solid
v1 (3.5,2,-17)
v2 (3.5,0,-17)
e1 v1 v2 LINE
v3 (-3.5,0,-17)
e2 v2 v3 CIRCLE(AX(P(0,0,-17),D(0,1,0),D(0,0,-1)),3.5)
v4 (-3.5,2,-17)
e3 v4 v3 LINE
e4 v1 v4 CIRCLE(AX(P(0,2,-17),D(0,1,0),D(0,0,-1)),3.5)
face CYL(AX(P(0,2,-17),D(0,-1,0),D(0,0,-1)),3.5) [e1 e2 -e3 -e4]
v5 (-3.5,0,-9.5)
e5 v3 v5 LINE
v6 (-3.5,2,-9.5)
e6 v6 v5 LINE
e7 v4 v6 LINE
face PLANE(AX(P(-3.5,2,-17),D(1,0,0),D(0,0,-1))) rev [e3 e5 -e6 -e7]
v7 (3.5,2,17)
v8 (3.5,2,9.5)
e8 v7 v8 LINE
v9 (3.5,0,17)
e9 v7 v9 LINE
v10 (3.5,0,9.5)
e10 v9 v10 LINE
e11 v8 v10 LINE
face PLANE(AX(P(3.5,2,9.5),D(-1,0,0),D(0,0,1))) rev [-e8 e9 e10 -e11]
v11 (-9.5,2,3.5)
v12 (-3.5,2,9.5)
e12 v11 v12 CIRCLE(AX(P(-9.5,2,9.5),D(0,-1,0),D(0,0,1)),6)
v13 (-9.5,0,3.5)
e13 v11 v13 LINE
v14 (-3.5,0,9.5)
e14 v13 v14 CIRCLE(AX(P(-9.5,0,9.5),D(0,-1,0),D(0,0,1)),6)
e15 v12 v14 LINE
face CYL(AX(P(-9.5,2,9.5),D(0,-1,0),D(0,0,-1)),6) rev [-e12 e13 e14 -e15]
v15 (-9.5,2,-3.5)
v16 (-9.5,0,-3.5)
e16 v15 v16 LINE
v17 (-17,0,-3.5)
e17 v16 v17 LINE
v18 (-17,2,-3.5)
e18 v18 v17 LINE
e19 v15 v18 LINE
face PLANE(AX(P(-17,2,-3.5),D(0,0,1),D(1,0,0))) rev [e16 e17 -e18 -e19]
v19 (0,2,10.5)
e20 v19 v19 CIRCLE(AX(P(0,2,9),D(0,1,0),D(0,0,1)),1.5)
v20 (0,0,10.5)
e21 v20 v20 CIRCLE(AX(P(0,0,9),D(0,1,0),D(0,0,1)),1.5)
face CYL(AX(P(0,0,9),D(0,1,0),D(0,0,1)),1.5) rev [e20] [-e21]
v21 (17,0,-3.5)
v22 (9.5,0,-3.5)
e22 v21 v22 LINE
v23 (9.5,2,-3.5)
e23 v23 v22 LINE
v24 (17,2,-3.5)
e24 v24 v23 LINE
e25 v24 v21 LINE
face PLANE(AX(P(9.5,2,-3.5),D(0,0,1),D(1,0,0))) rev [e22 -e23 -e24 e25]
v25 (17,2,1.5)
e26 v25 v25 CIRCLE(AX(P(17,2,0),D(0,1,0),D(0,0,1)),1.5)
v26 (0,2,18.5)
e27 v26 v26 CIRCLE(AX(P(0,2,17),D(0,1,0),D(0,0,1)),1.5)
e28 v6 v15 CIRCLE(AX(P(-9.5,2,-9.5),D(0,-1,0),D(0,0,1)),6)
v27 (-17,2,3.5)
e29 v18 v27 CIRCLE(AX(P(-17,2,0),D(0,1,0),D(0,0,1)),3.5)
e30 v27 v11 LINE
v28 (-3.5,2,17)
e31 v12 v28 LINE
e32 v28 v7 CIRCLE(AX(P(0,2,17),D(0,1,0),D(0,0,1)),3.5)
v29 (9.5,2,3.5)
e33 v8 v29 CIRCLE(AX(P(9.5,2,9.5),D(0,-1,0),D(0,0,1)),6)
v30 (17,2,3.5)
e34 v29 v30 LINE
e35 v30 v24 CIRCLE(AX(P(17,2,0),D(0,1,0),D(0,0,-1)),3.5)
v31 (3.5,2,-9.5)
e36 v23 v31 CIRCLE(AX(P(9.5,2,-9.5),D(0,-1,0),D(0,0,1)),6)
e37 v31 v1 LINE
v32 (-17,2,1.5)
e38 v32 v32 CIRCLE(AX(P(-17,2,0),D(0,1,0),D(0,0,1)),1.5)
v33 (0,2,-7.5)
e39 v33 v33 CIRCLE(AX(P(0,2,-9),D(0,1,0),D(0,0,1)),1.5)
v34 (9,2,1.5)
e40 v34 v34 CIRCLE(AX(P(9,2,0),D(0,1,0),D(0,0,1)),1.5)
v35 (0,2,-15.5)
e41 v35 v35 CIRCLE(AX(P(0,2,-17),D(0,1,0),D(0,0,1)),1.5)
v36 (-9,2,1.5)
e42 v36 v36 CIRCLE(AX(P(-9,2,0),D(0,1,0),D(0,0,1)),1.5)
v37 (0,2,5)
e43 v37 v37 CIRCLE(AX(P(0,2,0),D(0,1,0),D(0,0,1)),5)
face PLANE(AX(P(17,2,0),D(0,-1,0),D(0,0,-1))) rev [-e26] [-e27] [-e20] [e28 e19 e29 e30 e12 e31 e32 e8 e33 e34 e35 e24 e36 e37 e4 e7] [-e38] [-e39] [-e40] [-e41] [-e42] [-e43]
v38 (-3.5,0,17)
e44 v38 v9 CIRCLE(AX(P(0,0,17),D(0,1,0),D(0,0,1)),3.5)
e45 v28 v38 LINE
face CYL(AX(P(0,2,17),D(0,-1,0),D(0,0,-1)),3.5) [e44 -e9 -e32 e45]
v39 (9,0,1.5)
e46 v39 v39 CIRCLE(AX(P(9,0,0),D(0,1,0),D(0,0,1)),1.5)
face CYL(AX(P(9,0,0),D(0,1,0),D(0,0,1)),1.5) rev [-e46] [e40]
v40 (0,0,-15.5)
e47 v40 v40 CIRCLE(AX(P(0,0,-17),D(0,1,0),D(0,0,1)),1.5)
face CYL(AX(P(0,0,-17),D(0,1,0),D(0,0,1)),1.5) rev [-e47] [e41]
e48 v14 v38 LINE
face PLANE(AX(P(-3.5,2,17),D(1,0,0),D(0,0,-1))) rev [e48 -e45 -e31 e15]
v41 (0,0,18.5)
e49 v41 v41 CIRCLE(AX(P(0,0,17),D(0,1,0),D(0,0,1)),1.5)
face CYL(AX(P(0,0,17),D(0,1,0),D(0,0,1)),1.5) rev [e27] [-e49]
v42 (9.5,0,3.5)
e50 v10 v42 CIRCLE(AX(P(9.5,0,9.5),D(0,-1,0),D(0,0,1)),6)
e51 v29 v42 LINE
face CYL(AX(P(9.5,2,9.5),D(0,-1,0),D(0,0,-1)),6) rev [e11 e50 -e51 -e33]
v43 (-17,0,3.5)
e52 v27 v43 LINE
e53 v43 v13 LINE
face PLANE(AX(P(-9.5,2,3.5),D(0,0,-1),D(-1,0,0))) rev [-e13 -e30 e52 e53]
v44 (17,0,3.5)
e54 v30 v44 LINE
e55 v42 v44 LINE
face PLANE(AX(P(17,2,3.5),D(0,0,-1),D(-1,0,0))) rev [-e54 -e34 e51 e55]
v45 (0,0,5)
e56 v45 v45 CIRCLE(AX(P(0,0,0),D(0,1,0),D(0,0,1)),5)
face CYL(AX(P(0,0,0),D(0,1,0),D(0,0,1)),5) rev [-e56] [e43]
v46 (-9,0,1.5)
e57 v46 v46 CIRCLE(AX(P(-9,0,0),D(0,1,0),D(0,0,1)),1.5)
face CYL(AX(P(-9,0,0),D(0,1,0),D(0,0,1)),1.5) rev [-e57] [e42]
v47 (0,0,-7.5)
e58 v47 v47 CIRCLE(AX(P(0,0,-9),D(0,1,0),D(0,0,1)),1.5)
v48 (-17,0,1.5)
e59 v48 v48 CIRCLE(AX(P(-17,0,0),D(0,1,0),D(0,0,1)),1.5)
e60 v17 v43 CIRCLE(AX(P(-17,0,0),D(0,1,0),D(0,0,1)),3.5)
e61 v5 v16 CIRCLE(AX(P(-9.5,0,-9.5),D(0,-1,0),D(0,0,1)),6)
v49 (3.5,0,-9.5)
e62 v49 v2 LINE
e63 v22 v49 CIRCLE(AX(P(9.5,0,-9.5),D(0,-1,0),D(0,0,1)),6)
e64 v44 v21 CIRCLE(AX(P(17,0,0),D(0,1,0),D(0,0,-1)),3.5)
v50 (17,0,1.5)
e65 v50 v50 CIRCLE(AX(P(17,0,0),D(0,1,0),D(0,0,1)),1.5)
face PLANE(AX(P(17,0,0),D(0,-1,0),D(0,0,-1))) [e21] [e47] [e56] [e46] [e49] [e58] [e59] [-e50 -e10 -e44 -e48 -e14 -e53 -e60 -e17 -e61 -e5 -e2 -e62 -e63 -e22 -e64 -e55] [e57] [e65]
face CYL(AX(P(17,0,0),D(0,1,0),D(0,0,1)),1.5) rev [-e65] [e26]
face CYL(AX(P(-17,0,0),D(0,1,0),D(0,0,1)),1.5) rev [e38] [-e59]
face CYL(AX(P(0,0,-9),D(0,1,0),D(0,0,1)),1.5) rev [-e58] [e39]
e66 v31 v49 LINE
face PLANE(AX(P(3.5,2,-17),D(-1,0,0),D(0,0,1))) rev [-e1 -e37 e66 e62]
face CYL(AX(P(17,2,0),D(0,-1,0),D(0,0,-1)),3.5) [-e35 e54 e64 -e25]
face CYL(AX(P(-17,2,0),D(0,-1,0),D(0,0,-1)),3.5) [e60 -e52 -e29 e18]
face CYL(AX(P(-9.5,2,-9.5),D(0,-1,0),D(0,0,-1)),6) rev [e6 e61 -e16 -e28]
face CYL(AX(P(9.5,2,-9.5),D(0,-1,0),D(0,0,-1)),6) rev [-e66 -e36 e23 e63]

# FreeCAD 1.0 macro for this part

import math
import FreeCAD as App
import Part
import Sketcher
from FreeCAD import Vector
Q = App.Units.Quantity

doc = App.newDocument("Part")
body = doc.addObject("PartDesign::Body", "Body")

# Sketch on XZ plane
sketch1 = body.newObject("Sketcher::SketchObject", "Sketch")
sketch1.AttachmentSupport = (doc.getObject("XZ_Plane"), [""])
sketch1.MapMode = "FlatFace"
sketch1.addGeometry(Part.LineSegment(Vector(-3.5, -17, 0), Vector(-3.5, -9.5, 0)), False)
sketch1.addGeometry(Part.ArcOfCircle(Part.Circle(Vector(-9.5, -9.5, 0), Vector(0, 0, 1), 6), math.radians(0), math.radians(90)), False)
sketch1.addGeometry(Part.LineSegment(Vector(-9.5, -3.5, 0), Vector(-17, -3.5, 0)), False)
sketch1.addGeometry(Part.ArcOfCircle(Part.Circle(Vector(-17, 0, 0), Vector(0, 0, 1), 3.5), math.radians(90), math.radians(270)), False)
sketch1.addGeometry(Part.LineSegment(Vector(-17, 3.5, 0), Vector(-9.5, 3.5, 0)), False)
sketch1.addGeometry(Part.ArcOfCircle(Part.Circle(Vector(-9.5, 9.5, 0), Vector(0, 0, 1), 6), math.radians(-90), math.radians(0)), False)
sketch1.addGeometry(Part.LineSegment(Vector(-3.5, 9.5, 0), Vector(-3.5, 17, 0)), False)
sketch1.addGeometry(Part.ArcOfCircle(Part.Circle(Vector(0, 17, 0), Vector(0, 0, 1), 3.5), math.radians(0), math.radians(180)), False)
sketch1.addGeometry(Part.LineSegment(Vector(3.5, 17, 0), Vector(3.5, 9.5, 0)), False)
sketch1.addGeometry(Part.ArcOfCircle(Part.Circle(Vector(9.5, 9.5, 0), Vector(0, 0, 1), 6), math.radians(180), math.radians(270)), False)
sketch1.addGeometry(Part.LineSegment(Vector(9.5, 3.5, 0), Vector(17, 3.5, 0)), False)
sketch1.addGeometry(Part.ArcOfCircle(Part.Circle(Vector(17, 0, 0), Vector(0, 0, 1), 3.5), math.radians(-90), math.radians(90)), False)
sketch1.addGeometry(Part.LineSegment(Vector(17, -3.5, 0), Vector(9.5, -3.5, 0)), False)
sketch1.addGeometry(Part.ArcOfCircle(Part.Circle(Vector(9.5, -9.5, 0), Vector(0, 0, 1), 6), math.radians(90), math.radians(180)), False)
sketch1.addGeometry(Part.LineSegment(Vector(3.5, -9.5, 0), Vector(3.5, -17, 0)), False)
sketch1.addGeometry(Part.ArcOfCircle(Part.Circle(Vector(0, -17, 0), Vector(0, 0, 1), 3.5), math.radians(180), math.radians(360)), False)
sketch1.addConstraint(Sketcher.Constraint("Tangent", 0, 2, 1, 1))
sketch1.addConstraint(Sketcher.Constraint("Tangent", 1, 2, 2, 1))
sketch1.addConstraint(Sketcher.Constraint("Tangent", 2, 2, 3, 2))
sketch1.addConstraint(Sketcher.Constraint("Tangent", 3, 1, 4, 1))
sketch1.addConstraint(Sketcher.Constraint("Tangent", 4, 2, 5, 1))
sketch1.addConstraint(Sketcher.Constraint("Tangent", 5, 2, 6, 1))
sketch1.addConstraint(Sketcher.Constraint("Tangent", 6, 2, 7, 2))
sketch1.addConstraint(Sketcher.Constraint("Tangent", 7, 1, 8, 1))
sketch1.addConstraint(Sketcher.Constraint("Tangent", 8, 2, 9, 1))
sketch1.addConstraint(Sketcher.Constraint("Tangent", 9, 2, 10, 1))
sketch1.addConstraint(Sketcher.Constraint("Tangent", 10, 2, 11, 2))
sketch1.addConstraint(Sketcher.Constraint("Tangent", 11, 1, 12, 1))
sketch1.addConstraint(Sketcher.Constraint("Tangent", 12, 2, 13, 1))
sketch1.addConstraint(Sketcher.Constraint("Tangent", 13, 2, 14, 1))
sketch1.addConstraint(Sketcher.Constraint("Tangent", 14, 2, 15, 2))
sketch1.addConstraint(Sketcher.Constraint("Tangent", 15, 1, 0, 1))
sketch1.addConstraint(Sketcher.Constraint("Vertical", 0))
sketch1.addConstraint(Sketcher.Constraint("Horizontal", 2))
sketch1.addConstraint(Sketcher.Constraint("Horizontal", 4))
sketch1.addConstraint(Sketcher.Constraint("Vertical", 6))
sketch1.addConstraint(Sketcher.Constraint("Vertical", 8))
sketch1.addConstraint(Sketcher.Constraint("Horizontal", 10))
sketch1.addConstraint(Sketcher.Constraint("Horizontal", 12))
sketch1.addConstraint(Sketcher.Constraint("Vertical", 14))
sketch1.addConstraint(Sketcher.Constraint("Equal", 1, 5))
sketch1.addConstraint(Sketcher.Constraint("Equal", 3, 7))
sketch1.addConstraint(Sketcher.Constraint("Equal", 5, 9))
sketch1.addConstraint(Sketcher.Constraint("Equal", 7, 11))
sketch1.addConstraint(Sketcher.Constraint("Equal", 9, 13))
sketch1.addConstraint(Sketcher.Constraint("Equal", 11, 15))
sketch1.addConstraint(Sketcher.Constraint("Symmetric", 1, 3, 9, 3, -1, 1))
sketch1.addConstraint(Sketcher.Constraint("Symmetric", 5, 3, 9, 3, -2))
sketch1.addConstraint(Sketcher.Constraint("Equal", 4, 10))
sketch1.addConstraint(Sketcher.Constraint("Equal", 12, 0))
sketch1.addConstraint(Sketcher.Constraint("Equal", 0, 6))
sketch1.addConstraint(Sketcher.Constraint("Radius", 1, Q("6 mm")))
sketch1.addConstraint(Sketcher.Constraint("Radius", 3, Q("3.5 mm")))
sketch1.addConstraint(Sketcher.Constraint("DistanceX", 2, 2, 2, 1, Q("7.5 mm")))
pad1 = body.newObject("PartDesign::Pad", "Pad")
pad1.Profile = sketch1
pad1.Length = 2
pad1.Reversed = True

# Sketch on XZ plane
sketch2 = body.newObject("Sketcher::SketchObject", "Sketch001")
sketch2.AttachmentSupport = (doc.getObject("XZ_Plane"), [""])
sketch2.MapMode = "FlatFace"
sketch2.AttachmentOffset = App.Placement(Vector(0, 0, -2), App.Rotation())
sketch2.addGeometry(Part.Circle(Vector(0, -17, 0), Vector(0, 0, 1), 1.5), False)
sketch2.addGeometry(Part.Circle(Vector(0, -9, 0), Vector(0, 0, 1), 1.5), False)
sketch2.addGeometry(Part.Circle(Vector(0, 0, 0), Vector(0, 0, 1), 5), False)
sketch2.addGeometry(Part.Circle(Vector(17, 0, 0), Vector(0, 0, 1), 1.5), False)
sketch2.addGeometry(Part.Circle(Vector(9, 0, 0), Vector(0, 0, 1), 1.5), False)
sketch2.addGeometry(Part.Circle(Vector(0, 17, 0), Vector(0, 0, 1), 1.5), False)
sketch2.addGeometry(Part.Circle(Vector(0, 9, 0), Vector(0, 0, 1), 1.5), False)
sketch2.addGeometry(Part.Circle(Vector(-17, 0, 0), Vector(0, 0, 1), 1.5), False)
sketch2.addGeometry(Part.Circle(Vector(-9, 0, 0), Vector(0, 0, 1), 1.5), False)
sketch2.addConstraint(Sketcher.Constraint("Coincident", 2, 3, -1, 1))
sketch2.addConstraint(Sketcher.Constraint("Equal", 0, 1))
sketch2.addConstraint(Sketcher.Constraint("Equal", 1, 3))
sketch2.addConstraint(Sketcher.Constraint("Equal", 3, 4))
sketch2.addConstraint(Sketcher.Constraint("Equal", 4, 5))
sketch2.addConstraint(Sketcher.Constraint("Equal", 5, 6))
sketch2.addConstraint(Sketcher.Constraint("Equal", 6, 7))
sketch2.addConstraint(Sketcher.Constraint("Equal", 7, 8))
sketch2.addConstraint(Sketcher.Constraint("Symmetric", 0, 3, 5, 3, -1, 1))
sketch2.addConstraint(Sketcher.Constraint("Symmetric", 1, 3, 6, 3, -1, 1))
sketch2.addConstraint(Sketcher.Constraint("Symmetric", 3, 3, 7, 3, -1, 1))
sketch2.addConstraint(Sketcher.Constraint("Symmetric", 4, 3, 8, 3, -1, 1))
sketch2.addConstraint(Sketcher.Constraint("PointOnObject", 0, 3, -2))
sketch2.addConstraint(Sketcher.Constraint("PointOnObject", 1, 3, -2))
sketch2.addConstraint(Sketcher.Constraint("PointOnObject", 3, 3, -1))
sketch2.addConstraint(Sketcher.Constraint("PointOnObject", 4, 3, -1))
sketch2.addConstraint(Sketcher.Constraint("Diameter", 0, Q("3 mm")))
sketch2.addConstraint(Sketcher.Constraint("Diameter", 2, Q("10 mm")))
sketch2.addConstraint(Sketcher.Constraint("DistanceY", 0, 3, -1, 1, Q("17 mm")))
sketch2.addConstraint(Sketcher.Constraint("DistanceY", 1, 3, -1, 1, Q("9 mm")))
sketch2.addConstraint(Sketcher.Constraint("DistanceX", -1, 1, 3, 3, Q("17 mm")))
sketch2.addConstraint(Sketcher.Constraint("DistanceX", -1, 1, 4, 3, Q("9 mm")))
pocket1 = body.newObject("PartDesign::Pocket", "Pocket")
pocket1.Profile = sketch2
pocket1.Length = 2
pocket1.Reversed = True

doc.recompute()
